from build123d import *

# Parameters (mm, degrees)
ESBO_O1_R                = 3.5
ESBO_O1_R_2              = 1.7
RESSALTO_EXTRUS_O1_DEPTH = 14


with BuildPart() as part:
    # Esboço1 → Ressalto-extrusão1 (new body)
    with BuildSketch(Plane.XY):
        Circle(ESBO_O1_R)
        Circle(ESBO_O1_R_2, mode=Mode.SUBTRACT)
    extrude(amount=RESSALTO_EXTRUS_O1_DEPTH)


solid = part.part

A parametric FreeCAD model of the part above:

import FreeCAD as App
import Part
import Sketcher

V = App.Vector

doc = App.newDocument("Part")
body = doc.addObject("PartDesign::Body", "Body")

# Sketch on XY plane
sketch1 = doc.addObject("Sketcher::SketchObject", "Sketch")
body.addObject(sketch1)
sketch1.AttachmentSupport = (doc.XY_Plane, [""])
sketch1.MapMode = "FlatFace"
sketch1.addGeometry([
    Part.Circle(V(0, 0, 0), V(0, 0, 1), 3.5),
    Part.Circle(V(0, 0, 0), V(0, 0, 1), 1.7),
], False)
sketch1.addConstraint([
    Sketcher.Constraint("Coincident", 0, 3, -1, 1),
    Sketcher.Constraint("Coincident", 1, 3, -1, 1),
    Sketcher.Constraint("Diameter", 0, 7.0),
    Sketcher.Constraint("Diameter", 1, 3.4),
])
pad1 = doc.addObject("PartDesign::Pad", "Pad")
body.addObject(pad1)
pad1.Profile = sketch1
pad1.Length = 14

doc.recompute()
